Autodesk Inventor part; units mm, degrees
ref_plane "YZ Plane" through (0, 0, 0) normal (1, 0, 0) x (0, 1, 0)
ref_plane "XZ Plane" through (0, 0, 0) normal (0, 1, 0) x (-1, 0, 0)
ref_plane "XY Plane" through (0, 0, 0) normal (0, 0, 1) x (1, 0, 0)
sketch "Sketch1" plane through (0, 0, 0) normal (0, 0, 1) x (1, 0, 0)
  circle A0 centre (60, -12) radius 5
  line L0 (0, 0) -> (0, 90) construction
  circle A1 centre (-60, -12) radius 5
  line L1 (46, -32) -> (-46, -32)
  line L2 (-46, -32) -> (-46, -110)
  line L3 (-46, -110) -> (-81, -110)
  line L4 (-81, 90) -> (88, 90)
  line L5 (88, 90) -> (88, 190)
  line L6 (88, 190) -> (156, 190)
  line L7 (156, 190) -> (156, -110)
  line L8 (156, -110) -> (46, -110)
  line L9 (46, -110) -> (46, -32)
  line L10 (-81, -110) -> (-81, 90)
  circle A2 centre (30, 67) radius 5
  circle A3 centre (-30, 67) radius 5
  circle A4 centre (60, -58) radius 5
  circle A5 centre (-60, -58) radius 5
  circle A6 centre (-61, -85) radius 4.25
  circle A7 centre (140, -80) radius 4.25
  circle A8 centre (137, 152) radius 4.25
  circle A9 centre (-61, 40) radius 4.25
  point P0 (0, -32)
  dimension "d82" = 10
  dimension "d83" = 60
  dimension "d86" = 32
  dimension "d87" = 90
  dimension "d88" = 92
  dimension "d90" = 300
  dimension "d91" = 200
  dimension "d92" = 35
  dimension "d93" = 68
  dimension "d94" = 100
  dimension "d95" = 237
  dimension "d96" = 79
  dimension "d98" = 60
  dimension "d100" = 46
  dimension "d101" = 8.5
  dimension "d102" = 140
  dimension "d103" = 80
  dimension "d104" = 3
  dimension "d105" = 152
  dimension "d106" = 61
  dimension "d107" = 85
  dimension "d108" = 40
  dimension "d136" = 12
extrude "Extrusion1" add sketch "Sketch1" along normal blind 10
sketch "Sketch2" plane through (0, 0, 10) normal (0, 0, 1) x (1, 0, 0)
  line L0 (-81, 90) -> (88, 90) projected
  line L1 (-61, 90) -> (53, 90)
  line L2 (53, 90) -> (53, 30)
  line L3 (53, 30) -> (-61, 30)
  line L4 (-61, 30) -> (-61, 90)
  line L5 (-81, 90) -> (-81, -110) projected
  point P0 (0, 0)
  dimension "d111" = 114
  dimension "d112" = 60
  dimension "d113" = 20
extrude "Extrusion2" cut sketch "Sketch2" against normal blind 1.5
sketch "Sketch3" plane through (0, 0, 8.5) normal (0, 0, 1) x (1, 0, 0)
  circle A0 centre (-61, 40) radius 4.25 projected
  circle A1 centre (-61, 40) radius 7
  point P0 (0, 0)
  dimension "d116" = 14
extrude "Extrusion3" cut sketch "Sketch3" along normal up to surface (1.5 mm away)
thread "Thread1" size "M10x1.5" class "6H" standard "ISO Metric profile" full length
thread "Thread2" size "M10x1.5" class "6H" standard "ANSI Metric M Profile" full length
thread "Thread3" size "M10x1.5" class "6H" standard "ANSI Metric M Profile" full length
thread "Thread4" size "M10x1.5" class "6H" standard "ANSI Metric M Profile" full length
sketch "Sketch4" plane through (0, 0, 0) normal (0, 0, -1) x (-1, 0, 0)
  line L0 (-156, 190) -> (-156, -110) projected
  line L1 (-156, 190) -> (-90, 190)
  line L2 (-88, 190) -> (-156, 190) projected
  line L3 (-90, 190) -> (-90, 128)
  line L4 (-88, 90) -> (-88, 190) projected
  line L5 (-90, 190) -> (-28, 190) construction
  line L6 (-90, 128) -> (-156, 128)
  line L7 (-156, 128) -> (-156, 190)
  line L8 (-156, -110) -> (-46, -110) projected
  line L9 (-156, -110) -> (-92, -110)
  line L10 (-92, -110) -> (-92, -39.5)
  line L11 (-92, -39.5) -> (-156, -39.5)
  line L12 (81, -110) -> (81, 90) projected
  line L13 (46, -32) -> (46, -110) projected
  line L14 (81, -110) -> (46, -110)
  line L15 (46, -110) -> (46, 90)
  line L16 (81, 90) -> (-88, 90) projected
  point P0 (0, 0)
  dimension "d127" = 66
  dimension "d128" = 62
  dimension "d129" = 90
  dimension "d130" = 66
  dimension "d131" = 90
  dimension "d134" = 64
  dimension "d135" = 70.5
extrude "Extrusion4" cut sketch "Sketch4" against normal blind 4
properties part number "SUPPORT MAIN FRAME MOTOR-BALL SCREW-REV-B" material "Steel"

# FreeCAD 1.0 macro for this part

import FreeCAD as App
import Part
import Sketcher
Q = App.Units.Quantity


def add_polygon(sketch, points):
    """Adds a closed chain of lines whose ends are joined by coincident constraints."""
    first, n = sketch.GeometryCount, len(points)
    for a, b in zip(points, points[1:] + points[:1]):
        sketch.addGeometry(Part.LineSegment(App.Vector(*a, 0), App.Vector(*b, 0)), False)
    for i in range(n):
        sketch.addConstraint(Sketcher.Constraint("Coincident", first + i, 2, first + (i + 1) % n, 1))

doc = App.newDocument("Part")
body = doc.addObject("PartDesign::Body", "Body")

# Sketch on XY plane
sketch1 = body.newObject("Sketcher::SketchObject", "Sketch")
sketch1.AttachmentSupport = (doc.getObject("XY_Plane"), [""])
sketch1.MapMode = "FlatFace"
add_polygon(sketch1, [(-46, -32), (46, -32), (46, -110), (156, -110), (156, 190), (88, 190), (88, 90), (-81, 90), (-81, -110), (-46, -110)])  # lines 0-9
sketch1.addGeometry(Part.Circle(App.Vector(-61, -85, 0), App.Vector(0, 0, 1), 4.2), False)  # 10
sketch1.addGeometry(Part.Circle(App.Vector(-60, -58, 0), App.Vector(0, 0, 1), 5), False)  # 11
sketch1.addGeometry(Part.Circle(App.Vector(-60, -12, 0), App.Vector(0, 0, 1), 5), False)  # 12
sketch1.addGeometry(Part.Circle(App.Vector(60, -58, 0), App.Vector(0, 0, 1), 5), False)  # 13
sketch1.addGeometry(Part.Circle(App.Vector(140, -80, 0), App.Vector(0, 0, 1), 4.2), False)  # 14
sketch1.addGeometry(Part.Circle(App.Vector(60, -12, 0), App.Vector(0, 0, 1), 5), False)  # 15
sketch1.addGeometry(Part.Circle(App.Vector(-61, 40, 0), App.Vector(0, 0, 1), 4.2), False)  # 16
sketch1.addGeometry(Part.Circle(App.Vector(-30, 67, 0), App.Vector(0, 0, 1), 5), False)  # 17
sketch1.addGeometry(Part.Circle(App.Vector(30, 67, 0), App.Vector(0, 0, 1), 5), False)  # 18
sketch1.addGeometry(Part.Circle(App.Vector(137, 152, 0), App.Vector(0, 0, 1), 4.2), False)  # 19
sketch1.addConstraint([
    Sketcher.Constraint("Horizontal", 0),
    Sketcher.Constraint("Vertical", 1),
    Sketcher.Constraint("Horizontal", 2),
    Sketcher.Constraint("Vertical", 3),
    Sketcher.Constraint("Horizontal", 4),
    Sketcher.Constraint("Vertical", 5),
    Sketcher.Constraint("Horizontal", 6),
    Sketcher.Constraint("Vertical", 7),
    Sketcher.Constraint("Horizontal", 8),
    Sketcher.Constraint("Vertical", 9),
    Sketcher.Constraint("Equal", 11, 12),
    Sketcher.Constraint("Equal", 12, 13),
    Sketcher.Constraint("Equal", 10, 14),
    Sketcher.Constraint("Equal", 13, 15),
    Sketcher.Constraint("Equal", 14, 16),
    Sketcher.Constraint("Equal", 15, 17),
    Sketcher.Constraint("Equal", 17, 18),
    Sketcher.Constraint("Equal", 16, 19),
    Sketcher.Constraint("Symmetric", 11, 3, 13, 3, -2),
    Sketcher.Constraint("Symmetric", 12, 3, 15, 3, -2),
    Sketcher.Constraint("Symmetric", 17, 3, 18, 3, -2),
    Sketcher.Constraint("Symmetric", 1, 2, 8, 2, -2),
    Sketcher.Constraint("Vertical", 11, 3, 12, 3),
    Sketcher.Constraint("Vertical", 10, 3, 16, 3),
    Sketcher.Constraint("Diameter", 11, Q("10 mm")),
    Sketcher.Constraint("Diameter", 10, Q("8.5 mm")),
    Sketcher.Constraint("DistanceX", 0, 1, 0, 2, Q("92 mm")),
    Sketcher.Constraint("DistanceX", 4, 2, 4, 1, Q("68 mm")),
    Sketcher.Constraint("DistanceX", 8, 1, 8, 2, Q("35 mm")),
    Sketcher.Constraint("DistanceY", 3, 1, 3, 2, Q("300 mm")),
    Sketcher.Constraint("DistanceY", 5, 2, 5, 1, Q("100 mm")),
    Sketcher.Constraint("DistanceX", 10, 3, -1, 1, Q("61 mm")),
    Sketcher.Constraint("DistanceY", 10, 3, -1, 1, Q("85 mm")),
    Sketcher.Constraint("DistanceX", 11, 3, -1, 1, Q("60 mm")),
    Sketcher.Constraint("DistanceY", 12, 3, -1, 1, Q("12 mm")),
    Sketcher.Constraint("DistanceX", -1, 1, 14, 3, Q("140 mm")),
    Sketcher.Constraint("DistanceY", 14, 3, -1, 1, Q("80 mm")),
    Sketcher.Constraint("DistanceY", -1, 1, 16, 3, Q("40 mm")),
    Sketcher.Constraint("DistanceY", -1, 1, 19, 3, Q("152 mm")),
    Sketcher.Constraint("DistanceY", 0, 2, -1, 1, Q("32 mm")),
    Sketcher.Constraint("DistanceY", -1, 1, 5, 2, Q("90 mm")),
    Sketcher.Constraint("DistanceY", 11, 3, 12, 3, Q("46 mm")),
    Sketcher.Constraint("DistanceY", 12, 3, 17, 3, Q("79 mm")),
    Sketcher.Constraint("DistanceX", 17, 3, 15, 3, Q("90 mm")),
    Sketcher.Constraint("DistanceX", 2, 1, 2, 2, Q("110 mm")),
    Sketcher.Constraint("DistanceX", -1, 1, 19, 3, Q("137 mm")),
])
pad1 = body.newObject("PartDesign::Pad", "Pad")
pad1.Profile = sketch1
pad1.Length = 10

# Sketch on XY plane
sketch2 = body.newObject("Sketcher::SketchObject", "Sketch001")
sketch2.AttachmentSupport = (doc.getObject("XY_Plane"), [""])
sketch2.MapMode = "FlatFace"
sketch2.AttachmentOffset = App.Placement(App.Vector(0, 0, 10), App.Rotation())
add_polygon(sketch2, [(53, 90), (-61, 90), (-61, 30), (53, 30)])  # lines 0-3
sketch2.addConstraint([
    Sketcher.Constraint("Horizontal", 0),
    Sketcher.Constraint("Vertical", 1),
    Sketcher.Constraint("Horizontal", 2),
    Sketcher.Constraint("Vertical", 3),
    Sketcher.Constraint("DistanceX", 0, 2, 0, 1, Q("114 mm")),
    Sketcher.Constraint("DistanceY", 1, 2, 1, 1, Q("60 mm")),
    Sketcher.Constraint("DistanceX", 0, 2, -1, 1, Q("61 mm")),
    Sketcher.Constraint("DistanceY", -1, 1, 0, 2, Q("90 mm")),
])
pocket1 = body.newObject("PartDesign::Pocket", "Pocket")
pocket1.Profile = sketch2
pocket1.Length = 1.5

# Sketch on XY plane
sketch3 = body.newObject("Sketcher::SketchObject", "Sketch002")
sketch3.AttachmentSupport = (doc.getObject("XY_Plane"), [""])
sketch3.MapMode = "FlatFace"
sketch3.AttachmentOffset = App.Placement(App.Vector(0, 0, 8.5), App.Rotation())
sketch3.addGeometry([
    Part.Circle(App.Vector(-61, 40, 0), App.Vector(0, 0, 1), 7),
    Part.Circle(App.Vector(-61, 40, 0), App.Vector(0, 0, 1), 4.2),
], False)
sketch3.addConstraint([
    Sketcher.Constraint("Coincident", 1, 3, 0, 3),
    Sketcher.Constraint("Diameter", 0, Q("14 mm")),
    Sketcher.Constraint("Diameter", 1, Q("8.5 mm")),
    Sketcher.Constraint("DistanceX", 0, 3, -1, 1, Q("61 mm")),
    Sketcher.Constraint("DistanceY", -1, 1, 0, 3, Q("40 mm")),
])
pocket2 = body.newObject("PartDesign::Pocket", "Pocket001")
pocket2.Profile = sketch3
pocket2.Length = 1.5
pocket2.Reversed = True

# Sketch on XY plane
sketch4 = body.newObject("Sketcher::SketchObject", "Sketch003")
sketch4.AttachmentSupport = (doc.getObject("XY_Plane"), [""])
sketch4.MapMode = "FlatFace"
add_polygon(sketch4, [(90, 190), (156, 190), (156, 128), (90, 128)])  # lines 0-3
add_polygon(sketch4, [(-81, 90), (-46, 90), (-46, -110), (-81, -110)])  # lines 4-7
add_polygon(sketch4, [(92, -40), (156, -40), (156, -110), (92, -110)])  # lines 8-11
sketch4.addConstraint([
    Sketcher.Constraint("Horizontal", 0),
    Sketcher.Constraint("Vertical", 1),
    Sketcher.Constraint("Horizontal", 2),
    Sketcher.Constraint("Vertical", 3),
    Sketcher.Constraint("Horizontal", 4),
    Sketcher.Constraint("Vertical", 5),
    Sketcher.Constraint("Horizontal", 6),
    Sketcher.Constraint("Vertical", 7),
    Sketcher.Constraint("Horizontal", 8),
    Sketcher.Constraint("Vertical", 9),
    Sketcher.Constraint("Horizontal", 10),
    Sketcher.Constraint("Vertical", 11),
    Sketcher.Constraint("Horizontal", 6, 2, 9, 2),
    Sketcher.Constraint("Vertical", 1, 2, 8, 2),
    Sketcher.Constraint("DistanceX", 0, 1, 0, 2, Q("66 mm")),
    Sketcher.Constraint("DistanceX", 8, 1, 8, 2, Q("64 mm")),
    Sketcher.Constraint("DistanceY", 1, 2, 1, 1, Q("62 mm")),
    Sketcher.Constraint("DistanceY", 9, 2, 9, 1, Q("70.5 mm")),
    Sketcher.Constraint("DistanceX", -1, 1, 2, 2, Q("90 mm")),
    Sketcher.Constraint("DistanceY", -1, 1, 4, 2, Q("90 mm")),
    Sketcher.Constraint("DistanceX", 4, 1, 4, 2, Q("35 mm")),
    Sketcher.Constraint("DistanceY", 5, 2, 5, 1, Q("200 mm")),
    Sketcher.Constraint("DistanceY", -1, 1, 0, 2, Q("190 mm")),
    Sketcher.Constraint("DistanceX", 4, 2, -1, 1, Q("46 mm")),
])
pocket3 = body.newObject("PartDesign::Pocket", "Pocket002")
pocket3.Profile = sketch4
pocket3.Length = 4
pocket3.Reversed = True

doc.recompute()
